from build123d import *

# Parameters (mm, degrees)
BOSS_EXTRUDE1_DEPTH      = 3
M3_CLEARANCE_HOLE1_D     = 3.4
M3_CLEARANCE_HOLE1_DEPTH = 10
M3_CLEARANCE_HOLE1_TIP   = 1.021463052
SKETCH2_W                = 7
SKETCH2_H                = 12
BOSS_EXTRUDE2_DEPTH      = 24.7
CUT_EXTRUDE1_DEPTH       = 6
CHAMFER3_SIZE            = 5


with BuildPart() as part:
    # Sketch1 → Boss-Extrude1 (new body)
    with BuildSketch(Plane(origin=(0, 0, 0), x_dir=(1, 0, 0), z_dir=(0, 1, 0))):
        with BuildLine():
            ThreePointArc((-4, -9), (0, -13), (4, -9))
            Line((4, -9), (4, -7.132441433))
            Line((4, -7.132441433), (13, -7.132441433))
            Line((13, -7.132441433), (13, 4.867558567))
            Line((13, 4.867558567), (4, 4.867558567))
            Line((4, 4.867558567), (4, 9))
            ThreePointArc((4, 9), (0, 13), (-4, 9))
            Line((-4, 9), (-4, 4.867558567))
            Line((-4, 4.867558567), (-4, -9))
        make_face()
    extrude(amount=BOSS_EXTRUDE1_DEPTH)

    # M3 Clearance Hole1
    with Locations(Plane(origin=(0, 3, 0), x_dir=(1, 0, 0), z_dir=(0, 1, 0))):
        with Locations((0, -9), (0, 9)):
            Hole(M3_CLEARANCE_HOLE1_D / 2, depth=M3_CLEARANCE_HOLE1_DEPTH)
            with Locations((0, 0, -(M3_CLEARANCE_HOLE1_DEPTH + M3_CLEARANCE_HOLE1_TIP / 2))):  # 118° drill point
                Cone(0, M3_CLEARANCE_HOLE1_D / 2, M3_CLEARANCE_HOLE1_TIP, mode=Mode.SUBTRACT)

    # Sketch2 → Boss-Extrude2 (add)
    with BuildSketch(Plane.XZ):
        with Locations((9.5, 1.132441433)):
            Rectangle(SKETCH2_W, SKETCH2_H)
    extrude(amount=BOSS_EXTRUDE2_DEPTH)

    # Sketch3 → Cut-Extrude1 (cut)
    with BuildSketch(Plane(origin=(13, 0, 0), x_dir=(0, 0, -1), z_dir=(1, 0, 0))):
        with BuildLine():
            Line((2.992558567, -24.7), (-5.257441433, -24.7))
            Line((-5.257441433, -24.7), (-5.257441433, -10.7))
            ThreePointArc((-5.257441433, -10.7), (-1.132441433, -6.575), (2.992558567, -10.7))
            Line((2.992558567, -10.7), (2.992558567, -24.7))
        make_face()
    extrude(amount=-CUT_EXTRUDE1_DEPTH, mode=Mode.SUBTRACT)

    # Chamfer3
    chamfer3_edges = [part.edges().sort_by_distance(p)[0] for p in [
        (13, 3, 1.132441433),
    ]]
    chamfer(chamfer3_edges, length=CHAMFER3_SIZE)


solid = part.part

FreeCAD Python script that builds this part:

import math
import FreeCAD as App
import Part
import Sketcher

V = App.Vector


def edges_at(feature, points):
    """Names of the edges that pass closest to the given points."""
    edges = feature.Shape.Edges
    near = lambda p: min(range(len(edges)), key=lambda i: edges[i].distToShape(Part.Vertex(*p))[0])
    return sorted({f"Edge{near(p) + 1}" for p in points})

doc = App.newDocument("Part")
body = doc.addObject("PartDesign::Body", "Body")

sketch1 = body.newObject("Sketcher::SketchObject", "Sketch")
sketch1.AttachmentSupport = (doc.getObject("XZ_Plane"), [""])
sketch1.MapMode = "FlatFace"
sketch1.addGeometry([
    Part.ArcOfCircle(Part.Circle(V(0, 9, 0), V(0, 0, 1), 4), math.radians(0), math.radians(180)),
    Part.LineSegment(V(4, 9, 0), V(4, 7.132441, 0)),
    Part.LineSegment(V(4, 7.132441, 0), V(13, 7.132441, 0)),
    Part.LineSegment(V(13, 7.132441, 0), V(13, -4.867559, 0)),
    Part.LineSegment(V(13, -4.867559, 0), V(4, -4.867559, 0)),
    Part.LineSegment(V(4, -4.867559, 0), V(4, -9, 0)),
    Part.ArcOfCircle(Part.Circle(V(0, -9, 0), V(0, 0, 1), 4), math.radians(180), math.radians(360)),
    Part.LineSegment(V(-4, -9, 0), V(-4, 9, 0)),
], False)
sketch1.addConstraint([
    Sketcher.Constraint("Tangent", 0, 1, 1, 1),
    Sketcher.Constraint("Coincident", 1, 2, 2, 1),
    Sketcher.Constraint("Coincident", 2, 2, 3, 1),
    Sketcher.Constraint("Coincident", 3, 2, 4, 1),
    Sketcher.Constraint("Coincident", 4, 2, 5, 1),
    Sketcher.Constraint("Tangent", 5, 2, 6, 2),
    Sketcher.Constraint("Tangent", 6, 1, 7, 1),
    Sketcher.Constraint("Tangent", 7, 2, 0, 2),
    Sketcher.Constraint("Vertical", 1),
    Sketcher.Constraint("Horizontal", 2),
    Sketcher.Constraint("Vertical", 3),
    Sketcher.Constraint("Horizontal", 4),
    Sketcher.Constraint("Vertical", 5),
    Sketcher.Constraint("Vertical", 7),
    Sketcher.Constraint("Equal", 0, 6),
    Sketcher.Constraint("Symmetric", 0, 3, 6, 3, -1, 1),
    Sketcher.Constraint("Radius", 0, 4.0),
    Sketcher.Constraint("DistanceX", 2, 1, 2, 2, 9.0),
    Sketcher.Constraint("DistanceY", 3, 2, 3, 1, 12.0),
    Sketcher.Constraint("DistanceY", 7, 1, 7, 2, 18.0),
    Sketcher.Constraint("DistanceY", 1, 2, 1, 1, 1.867559),
])
pad1 = body.newObject("PartDesign::Pad", "Pad")
pad1.Profile = sketch1
pad1.Length = 3
pad1.Reversed = True

sketch2 = body.newObject("Sketcher::SketchObject", "Sketch001")
sketch2.AttachmentSupport = (doc.getObject("XZ_Plane"), [""])
sketch2.MapMode = "FlatFace"
sketch2.AttachmentOffset = App.Placement(V(0, 0, -3), App.Rotation())
sketch2.addGeometry([
    Part.Circle(V(0, 9, 0), V(0, 0, 1), 1.7),
    Part.Circle(V(0, -9, 0), V(0, 0, 1), 1.7),
], False)
sketch2.addConstraint([
    Sketcher.Constraint("Equal", 0, 1),
    Sketcher.Constraint("Symmetric", 0, 3, 1, 3, -1, 1),
    Sketcher.Constraint("PointOnObject", 0, 3, -2),
    Sketcher.Constraint("Diameter", 0, 3.4),
    Sketcher.Constraint("DistanceY", -1, 1, 0, 3, 9.0),
])
doc.recompute()
hole = body.newObject("PartDesign::Hole", "Hole")
hole.Profile = sketch2
hole.ThreadType = "None"
hole.Diameter = 3.4
hole.DepthType = "Dimension"
hole.Depth = 10
hole.DrillPoint = "Angled"
hole.DrillPointAngle = 118
hole.Reversed = True

sketch3 = body.newObject("Sketcher::SketchObject", "Sketch002")
sketch3.AttachmentSupport = (doc.getObject("XZ_Plane"), [""])
sketch3.MapMode = "FlatFace"
sketch3.addGeometry([
    Part.LineSegment(V(6, 7.132441, 0), V(6, -4.867559, 0)),
    Part.LineSegment(V(6, -4.867559, 0), V(13, -4.867559, 0)),
    Part.LineSegment(V(13, -4.867559, 0), V(13, 7.132441, 0)),
    Part.LineSegment(V(13, 7.132441, 0), V(6, 7.132441, 0)),
], False)
sketch3.addConstraint([
    Sketcher.Constraint("Coincident", 0, 2, 1, 1),
    Sketcher.Constraint("Coincident", 1, 2, 2, 1),
    Sketcher.Constraint("Coincident", 2, 2, 3, 1),
    Sketcher.Constraint("Coincident", 3, 2, 0, 1),
    Sketcher.Constraint("Vertical", 0),
    Sketcher.Constraint("Horizontal", 1),
    Sketcher.Constraint("Vertical", 2),
    Sketcher.Constraint("Horizontal", 3),
    Sketcher.Constraint("DistanceX", 1, 1, 1, 2, 7.0),
    Sketcher.Constraint("DistanceY", 0, 2, 0, 1, 12.0),
    Sketcher.Constraint("DistanceX", -1, 1, 0, 2, 6.0),
    Sketcher.Constraint("DistanceY", 0, 2, -1, 1, 4.867559),
])
pad2 = body.newObject("PartDesign::Pad", "Pad001")
pad2.Profile = sketch3
pad2.Length = 24.7

sketch4 = body.newObject("Sketcher::SketchObject", "Sketch003")
sketch4.AttachmentSupport = (doc.getObject("YZ_Plane"), [""])
sketch4.MapMode = "FlatFace"
sketch4.AttachmentOffset = App.Placement(V(0, 0, 13), App.Rotation())
sketch4.addGeometry([
    Part.LineSegment(V(-24.7, 5.257441, 0), V(-24.7, -2.992559, 0)),
    Part.LineSegment(V(-24.7, -2.992559, 0), V(-10.7, -2.992559, 0)),
    Part.ArcOfCircle(Part.Circle(V(-10.7, 1.132441, 0), V(0, 0, 1), 4.125), math.radians(-90), math.radians(90)),
    Part.LineSegment(V(-10.7, 5.257441, 0), V(-24.7, 5.257441, 0)),
], False)
sketch4.addConstraint([
    Sketcher.Constraint("Coincident", 0, 2, 1, 1),
    Sketcher.Constraint("Tangent", 1, 2, 2, 1),
    Sketcher.Constraint("Tangent", 2, 2, 3, 1),
    Sketcher.Constraint("Coincident", 3, 2, 0, 1),
    Sketcher.Constraint("Vertical", 0),
    Sketcher.Constraint("Horizontal", 1),
    Sketcher.Constraint("Horizontal", 3),
    Sketcher.Constraint("DistanceX", 1, 1, 1, 2, 14.0),
    Sketcher.Constraint("Radius", 2, 4.125),
    Sketcher.Constraint("DistanceX", 2, 3, -1, 1, 10.7),
    Sketcher.Constraint("DistanceY", -1, 1, 2, 3, 1.132441),
])
pocket1 = body.newObject("PartDesign::Pocket", "Pocket")
pocket1.Profile = sketch4
pocket1.Length = 6
doc.recompute()

chamfer = body.newObject("PartDesign::Chamfer", "Chamfer")
chamfer.Base = (pocket1, edges_at(pocket1, [(13, 3, 1.132)]))
chamfer.Size = 5

doc.recompute()
